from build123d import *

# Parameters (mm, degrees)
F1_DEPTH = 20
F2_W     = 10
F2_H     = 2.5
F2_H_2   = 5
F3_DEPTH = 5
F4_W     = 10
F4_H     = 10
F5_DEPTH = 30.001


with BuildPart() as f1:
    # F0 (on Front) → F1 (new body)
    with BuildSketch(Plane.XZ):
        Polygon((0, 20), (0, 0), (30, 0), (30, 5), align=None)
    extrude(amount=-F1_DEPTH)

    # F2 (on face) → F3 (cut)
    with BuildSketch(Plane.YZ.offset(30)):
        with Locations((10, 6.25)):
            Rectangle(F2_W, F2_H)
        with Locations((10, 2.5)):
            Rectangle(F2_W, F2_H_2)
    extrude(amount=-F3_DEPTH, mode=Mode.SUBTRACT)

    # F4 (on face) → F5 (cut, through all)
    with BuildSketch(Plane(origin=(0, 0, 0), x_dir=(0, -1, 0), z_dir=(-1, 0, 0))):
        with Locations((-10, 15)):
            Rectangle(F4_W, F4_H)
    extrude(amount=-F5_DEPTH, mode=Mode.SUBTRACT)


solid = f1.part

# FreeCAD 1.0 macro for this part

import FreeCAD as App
import Part
import Sketcher
from FreeCAD import Vector


def add_polygon(sketch, points):
    """Adds a closed chain of lines whose ends are joined by coincident constraints."""
    first, n = sketch.GeometryCount, len(points)
    for a, b in zip(points, points[1:] + points[:1]):
        sketch.addGeometry(Part.LineSegment(App.Vector(*a, 0), App.Vector(*b, 0)), False)
    for i in range(n):
        sketch.addConstraint(Sketcher.Constraint("Coincident", first + i, 2, first + (i + 1) % n, 1))

doc = App.newDocument("Part")
body = doc.addObject("PartDesign::Body", "Body")

# Sketch on XZ plane
sketch1 = body.newObject("Sketcher::SketchObject", "Sketch")
sketch1.AttachmentSupport = (doc.getObject("XZ_Plane"), [""])
sketch1.MapMode = "FlatFace"
add_polygon(sketch1, [(0, 20), (0, 0), (30, 0), (30, 5)])  # lines 0-3
sketch1.addConstraint([
    Sketcher.Constraint("Vertical", 0),
    Sketcher.Constraint("Horizontal", 1),
    Sketcher.Constraint("Vertical", 2),
    Sketcher.Constraint("Coincident", 0, 2, -1, 1),
    Sketcher.Constraint("DistanceX", 1, 1, 1, 2, 30.0),
    Sketcher.Constraint("DistanceY", 0, 2, 0, 1, 20.0),
    Sketcher.Constraint("DistanceY", 2, 1, 2, 2, 5.0),
])
pad1 = body.newObject("PartDesign::Pad", "Pad")
pad1.Profile = sketch1
pad1.Length = 20
pad1.Reversed = True

# Sketch on YZ plane
sketch2 = body.newObject("Sketcher::SketchObject", "Sketch001")
sketch2.AttachmentSupport = (doc.getObject("YZ_Plane"), [""])
sketch2.MapMode = "FlatFace"
sketch2.AttachmentOffset = App.Placement(Vector(0, 0, 30), App.Rotation())
add_polygon(sketch2, [(5, 8), (5, 0), (15, 0), (15, 8)])  # lines 0-3
sketch2.addConstraint([
    Sketcher.Constraint("Vertical", 0),
    Sketcher.Constraint("Horizontal", 1),
    Sketcher.Constraint("Vertical", 2),
    Sketcher.Constraint("Horizontal", 3),
    Sketcher.Constraint("PointOnObject", 0, 2, -1),
    Sketcher.Constraint("DistanceX", 1, 1, 1, 2, 10.0),
    Sketcher.Constraint("DistanceY", 0, 2, 0, 1, 7.5),
    Sketcher.Constraint("DistanceX", -1, 1, 0, 2, 5.0),
])
pocket1 = body.newObject("PartDesign::Pocket", "Pocket")
pocket1.Profile = sketch2
pocket1.Length = 5

# Sketch on YZ plane
sketch3 = body.newObject("Sketcher::SketchObject", "Sketch002")
sketch3.AttachmentSupport = (doc.getObject("YZ_Plane"), [""])
sketch3.MapMode = "FlatFace"
add_polygon(sketch3, [(15, 20), (15, 10), (5, 10), (5, 20)])  # lines 0-3
sketch3.addConstraint([
    Sketcher.Constraint("Vertical", 0),
    Sketcher.Constraint("Horizontal", 1),
    Sketcher.Constraint("Vertical", 2),
    Sketcher.Constraint("Horizontal", 3),
    Sketcher.Constraint("Equal", 3, 0),
    Sketcher.Constraint("DistanceX", 1, 2, 1, 1, 10.0),
    Sketcher.Constraint("DistanceX", -1, 1, 0, 2, 15.0),
    Sketcher.Constraint("DistanceY", -1, 1, 0, 2, 10.0),
])
pocket2 = body.newObject("PartDesign::Pocket", "Pocket001")
pocket2.Profile = sketch3
pocket2.Type = "ThroughAll"
pocket2.Reversed = True

doc.recompute()
